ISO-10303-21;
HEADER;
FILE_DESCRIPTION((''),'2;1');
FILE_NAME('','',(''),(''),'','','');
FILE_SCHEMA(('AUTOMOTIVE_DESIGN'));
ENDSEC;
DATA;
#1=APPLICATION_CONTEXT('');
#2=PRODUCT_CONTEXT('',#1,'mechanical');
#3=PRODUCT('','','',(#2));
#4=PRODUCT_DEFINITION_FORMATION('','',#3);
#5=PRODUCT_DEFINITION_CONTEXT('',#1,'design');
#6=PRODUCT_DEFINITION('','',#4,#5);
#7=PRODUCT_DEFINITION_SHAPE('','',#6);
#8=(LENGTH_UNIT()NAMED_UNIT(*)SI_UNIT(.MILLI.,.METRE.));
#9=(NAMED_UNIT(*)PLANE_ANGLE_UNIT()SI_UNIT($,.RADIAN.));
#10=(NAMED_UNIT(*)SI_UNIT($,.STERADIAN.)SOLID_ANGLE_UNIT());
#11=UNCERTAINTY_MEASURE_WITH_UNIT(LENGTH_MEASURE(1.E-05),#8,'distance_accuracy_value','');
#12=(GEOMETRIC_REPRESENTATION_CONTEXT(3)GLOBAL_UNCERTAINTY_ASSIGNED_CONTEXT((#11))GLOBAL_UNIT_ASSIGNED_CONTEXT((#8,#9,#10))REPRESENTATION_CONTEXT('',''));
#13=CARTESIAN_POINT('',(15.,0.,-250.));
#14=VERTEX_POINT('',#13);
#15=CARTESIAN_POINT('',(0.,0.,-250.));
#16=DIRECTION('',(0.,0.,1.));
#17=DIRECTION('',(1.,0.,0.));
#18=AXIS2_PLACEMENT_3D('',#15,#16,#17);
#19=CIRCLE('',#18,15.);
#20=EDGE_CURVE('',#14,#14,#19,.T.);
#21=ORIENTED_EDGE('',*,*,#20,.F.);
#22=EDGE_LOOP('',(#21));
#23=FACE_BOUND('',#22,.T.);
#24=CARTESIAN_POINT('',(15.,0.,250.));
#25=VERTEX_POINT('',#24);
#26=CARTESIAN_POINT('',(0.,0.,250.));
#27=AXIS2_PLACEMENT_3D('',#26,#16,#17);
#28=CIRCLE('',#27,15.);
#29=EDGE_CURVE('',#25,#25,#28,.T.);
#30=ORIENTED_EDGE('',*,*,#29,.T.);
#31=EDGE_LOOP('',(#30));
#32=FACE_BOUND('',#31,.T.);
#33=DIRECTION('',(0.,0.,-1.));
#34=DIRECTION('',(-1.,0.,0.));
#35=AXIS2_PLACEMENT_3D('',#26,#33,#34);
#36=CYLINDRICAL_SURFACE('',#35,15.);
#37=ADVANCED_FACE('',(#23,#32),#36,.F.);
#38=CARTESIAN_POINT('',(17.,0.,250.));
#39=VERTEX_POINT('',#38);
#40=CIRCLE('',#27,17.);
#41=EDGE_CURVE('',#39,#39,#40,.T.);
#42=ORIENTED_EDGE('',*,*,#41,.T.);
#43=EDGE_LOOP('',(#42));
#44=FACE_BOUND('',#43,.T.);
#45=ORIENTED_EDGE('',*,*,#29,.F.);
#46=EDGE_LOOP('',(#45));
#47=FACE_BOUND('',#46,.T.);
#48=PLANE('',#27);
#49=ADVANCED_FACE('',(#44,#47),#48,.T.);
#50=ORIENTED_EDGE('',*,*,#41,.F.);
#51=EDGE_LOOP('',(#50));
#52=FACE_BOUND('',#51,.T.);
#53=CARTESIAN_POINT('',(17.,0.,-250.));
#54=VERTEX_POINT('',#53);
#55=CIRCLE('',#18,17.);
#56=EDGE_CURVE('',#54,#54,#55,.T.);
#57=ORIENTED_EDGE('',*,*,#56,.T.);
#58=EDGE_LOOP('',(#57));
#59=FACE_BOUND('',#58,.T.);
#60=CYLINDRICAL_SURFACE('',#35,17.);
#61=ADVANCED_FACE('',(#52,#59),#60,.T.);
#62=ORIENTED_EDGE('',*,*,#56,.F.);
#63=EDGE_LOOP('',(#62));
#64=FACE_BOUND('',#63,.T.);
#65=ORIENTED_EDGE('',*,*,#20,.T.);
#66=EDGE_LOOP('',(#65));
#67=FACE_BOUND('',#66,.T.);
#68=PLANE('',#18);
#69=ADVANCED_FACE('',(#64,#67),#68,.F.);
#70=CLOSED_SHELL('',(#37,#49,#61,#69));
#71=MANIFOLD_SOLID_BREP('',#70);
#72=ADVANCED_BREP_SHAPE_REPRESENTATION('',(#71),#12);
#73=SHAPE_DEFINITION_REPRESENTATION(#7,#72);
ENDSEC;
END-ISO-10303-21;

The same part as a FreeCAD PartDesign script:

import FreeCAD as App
import Part
import Sketcher

V = App.Vector
Q = App.Units.Quantity

doc = App.newDocument("Part")
body = doc.addObject("PartDesign::Body", "Body")

# Sketch on XY plane
sketch1 = doc.addObject("Sketcher::SketchObject", "Sketch")
body.addObject(sketch1)
sketch1.AttachmentSupport = (doc.XY_Plane, [""])
sketch1.MapMode = "FlatFace"
sketch1.addGeometry([
    Part.Circle(V(0, 0, 0), V(0, 0, 1), 17),
    Part.Circle(V(0, 0, 0), V(0, 0, 1), 15),
], False)
sketch1.addConstraint([
    Sketcher.Constraint("Coincident", 0, 3, -1, 1),
    Sketcher.Constraint("Coincident", 1, 3, -1, 1),
    Sketcher.Constraint("Diameter", 0, Q("34 mm")),
    Sketcher.Constraint("Diameter", 1, Q("30 mm")),
])
pad1 = doc.addObject("PartDesign::Pad", "Pad")
body.addObject(pad1)
pad1.Profile = sketch1
pad1.Length = 500
pad1.Midplane = True

doc.recompute()
